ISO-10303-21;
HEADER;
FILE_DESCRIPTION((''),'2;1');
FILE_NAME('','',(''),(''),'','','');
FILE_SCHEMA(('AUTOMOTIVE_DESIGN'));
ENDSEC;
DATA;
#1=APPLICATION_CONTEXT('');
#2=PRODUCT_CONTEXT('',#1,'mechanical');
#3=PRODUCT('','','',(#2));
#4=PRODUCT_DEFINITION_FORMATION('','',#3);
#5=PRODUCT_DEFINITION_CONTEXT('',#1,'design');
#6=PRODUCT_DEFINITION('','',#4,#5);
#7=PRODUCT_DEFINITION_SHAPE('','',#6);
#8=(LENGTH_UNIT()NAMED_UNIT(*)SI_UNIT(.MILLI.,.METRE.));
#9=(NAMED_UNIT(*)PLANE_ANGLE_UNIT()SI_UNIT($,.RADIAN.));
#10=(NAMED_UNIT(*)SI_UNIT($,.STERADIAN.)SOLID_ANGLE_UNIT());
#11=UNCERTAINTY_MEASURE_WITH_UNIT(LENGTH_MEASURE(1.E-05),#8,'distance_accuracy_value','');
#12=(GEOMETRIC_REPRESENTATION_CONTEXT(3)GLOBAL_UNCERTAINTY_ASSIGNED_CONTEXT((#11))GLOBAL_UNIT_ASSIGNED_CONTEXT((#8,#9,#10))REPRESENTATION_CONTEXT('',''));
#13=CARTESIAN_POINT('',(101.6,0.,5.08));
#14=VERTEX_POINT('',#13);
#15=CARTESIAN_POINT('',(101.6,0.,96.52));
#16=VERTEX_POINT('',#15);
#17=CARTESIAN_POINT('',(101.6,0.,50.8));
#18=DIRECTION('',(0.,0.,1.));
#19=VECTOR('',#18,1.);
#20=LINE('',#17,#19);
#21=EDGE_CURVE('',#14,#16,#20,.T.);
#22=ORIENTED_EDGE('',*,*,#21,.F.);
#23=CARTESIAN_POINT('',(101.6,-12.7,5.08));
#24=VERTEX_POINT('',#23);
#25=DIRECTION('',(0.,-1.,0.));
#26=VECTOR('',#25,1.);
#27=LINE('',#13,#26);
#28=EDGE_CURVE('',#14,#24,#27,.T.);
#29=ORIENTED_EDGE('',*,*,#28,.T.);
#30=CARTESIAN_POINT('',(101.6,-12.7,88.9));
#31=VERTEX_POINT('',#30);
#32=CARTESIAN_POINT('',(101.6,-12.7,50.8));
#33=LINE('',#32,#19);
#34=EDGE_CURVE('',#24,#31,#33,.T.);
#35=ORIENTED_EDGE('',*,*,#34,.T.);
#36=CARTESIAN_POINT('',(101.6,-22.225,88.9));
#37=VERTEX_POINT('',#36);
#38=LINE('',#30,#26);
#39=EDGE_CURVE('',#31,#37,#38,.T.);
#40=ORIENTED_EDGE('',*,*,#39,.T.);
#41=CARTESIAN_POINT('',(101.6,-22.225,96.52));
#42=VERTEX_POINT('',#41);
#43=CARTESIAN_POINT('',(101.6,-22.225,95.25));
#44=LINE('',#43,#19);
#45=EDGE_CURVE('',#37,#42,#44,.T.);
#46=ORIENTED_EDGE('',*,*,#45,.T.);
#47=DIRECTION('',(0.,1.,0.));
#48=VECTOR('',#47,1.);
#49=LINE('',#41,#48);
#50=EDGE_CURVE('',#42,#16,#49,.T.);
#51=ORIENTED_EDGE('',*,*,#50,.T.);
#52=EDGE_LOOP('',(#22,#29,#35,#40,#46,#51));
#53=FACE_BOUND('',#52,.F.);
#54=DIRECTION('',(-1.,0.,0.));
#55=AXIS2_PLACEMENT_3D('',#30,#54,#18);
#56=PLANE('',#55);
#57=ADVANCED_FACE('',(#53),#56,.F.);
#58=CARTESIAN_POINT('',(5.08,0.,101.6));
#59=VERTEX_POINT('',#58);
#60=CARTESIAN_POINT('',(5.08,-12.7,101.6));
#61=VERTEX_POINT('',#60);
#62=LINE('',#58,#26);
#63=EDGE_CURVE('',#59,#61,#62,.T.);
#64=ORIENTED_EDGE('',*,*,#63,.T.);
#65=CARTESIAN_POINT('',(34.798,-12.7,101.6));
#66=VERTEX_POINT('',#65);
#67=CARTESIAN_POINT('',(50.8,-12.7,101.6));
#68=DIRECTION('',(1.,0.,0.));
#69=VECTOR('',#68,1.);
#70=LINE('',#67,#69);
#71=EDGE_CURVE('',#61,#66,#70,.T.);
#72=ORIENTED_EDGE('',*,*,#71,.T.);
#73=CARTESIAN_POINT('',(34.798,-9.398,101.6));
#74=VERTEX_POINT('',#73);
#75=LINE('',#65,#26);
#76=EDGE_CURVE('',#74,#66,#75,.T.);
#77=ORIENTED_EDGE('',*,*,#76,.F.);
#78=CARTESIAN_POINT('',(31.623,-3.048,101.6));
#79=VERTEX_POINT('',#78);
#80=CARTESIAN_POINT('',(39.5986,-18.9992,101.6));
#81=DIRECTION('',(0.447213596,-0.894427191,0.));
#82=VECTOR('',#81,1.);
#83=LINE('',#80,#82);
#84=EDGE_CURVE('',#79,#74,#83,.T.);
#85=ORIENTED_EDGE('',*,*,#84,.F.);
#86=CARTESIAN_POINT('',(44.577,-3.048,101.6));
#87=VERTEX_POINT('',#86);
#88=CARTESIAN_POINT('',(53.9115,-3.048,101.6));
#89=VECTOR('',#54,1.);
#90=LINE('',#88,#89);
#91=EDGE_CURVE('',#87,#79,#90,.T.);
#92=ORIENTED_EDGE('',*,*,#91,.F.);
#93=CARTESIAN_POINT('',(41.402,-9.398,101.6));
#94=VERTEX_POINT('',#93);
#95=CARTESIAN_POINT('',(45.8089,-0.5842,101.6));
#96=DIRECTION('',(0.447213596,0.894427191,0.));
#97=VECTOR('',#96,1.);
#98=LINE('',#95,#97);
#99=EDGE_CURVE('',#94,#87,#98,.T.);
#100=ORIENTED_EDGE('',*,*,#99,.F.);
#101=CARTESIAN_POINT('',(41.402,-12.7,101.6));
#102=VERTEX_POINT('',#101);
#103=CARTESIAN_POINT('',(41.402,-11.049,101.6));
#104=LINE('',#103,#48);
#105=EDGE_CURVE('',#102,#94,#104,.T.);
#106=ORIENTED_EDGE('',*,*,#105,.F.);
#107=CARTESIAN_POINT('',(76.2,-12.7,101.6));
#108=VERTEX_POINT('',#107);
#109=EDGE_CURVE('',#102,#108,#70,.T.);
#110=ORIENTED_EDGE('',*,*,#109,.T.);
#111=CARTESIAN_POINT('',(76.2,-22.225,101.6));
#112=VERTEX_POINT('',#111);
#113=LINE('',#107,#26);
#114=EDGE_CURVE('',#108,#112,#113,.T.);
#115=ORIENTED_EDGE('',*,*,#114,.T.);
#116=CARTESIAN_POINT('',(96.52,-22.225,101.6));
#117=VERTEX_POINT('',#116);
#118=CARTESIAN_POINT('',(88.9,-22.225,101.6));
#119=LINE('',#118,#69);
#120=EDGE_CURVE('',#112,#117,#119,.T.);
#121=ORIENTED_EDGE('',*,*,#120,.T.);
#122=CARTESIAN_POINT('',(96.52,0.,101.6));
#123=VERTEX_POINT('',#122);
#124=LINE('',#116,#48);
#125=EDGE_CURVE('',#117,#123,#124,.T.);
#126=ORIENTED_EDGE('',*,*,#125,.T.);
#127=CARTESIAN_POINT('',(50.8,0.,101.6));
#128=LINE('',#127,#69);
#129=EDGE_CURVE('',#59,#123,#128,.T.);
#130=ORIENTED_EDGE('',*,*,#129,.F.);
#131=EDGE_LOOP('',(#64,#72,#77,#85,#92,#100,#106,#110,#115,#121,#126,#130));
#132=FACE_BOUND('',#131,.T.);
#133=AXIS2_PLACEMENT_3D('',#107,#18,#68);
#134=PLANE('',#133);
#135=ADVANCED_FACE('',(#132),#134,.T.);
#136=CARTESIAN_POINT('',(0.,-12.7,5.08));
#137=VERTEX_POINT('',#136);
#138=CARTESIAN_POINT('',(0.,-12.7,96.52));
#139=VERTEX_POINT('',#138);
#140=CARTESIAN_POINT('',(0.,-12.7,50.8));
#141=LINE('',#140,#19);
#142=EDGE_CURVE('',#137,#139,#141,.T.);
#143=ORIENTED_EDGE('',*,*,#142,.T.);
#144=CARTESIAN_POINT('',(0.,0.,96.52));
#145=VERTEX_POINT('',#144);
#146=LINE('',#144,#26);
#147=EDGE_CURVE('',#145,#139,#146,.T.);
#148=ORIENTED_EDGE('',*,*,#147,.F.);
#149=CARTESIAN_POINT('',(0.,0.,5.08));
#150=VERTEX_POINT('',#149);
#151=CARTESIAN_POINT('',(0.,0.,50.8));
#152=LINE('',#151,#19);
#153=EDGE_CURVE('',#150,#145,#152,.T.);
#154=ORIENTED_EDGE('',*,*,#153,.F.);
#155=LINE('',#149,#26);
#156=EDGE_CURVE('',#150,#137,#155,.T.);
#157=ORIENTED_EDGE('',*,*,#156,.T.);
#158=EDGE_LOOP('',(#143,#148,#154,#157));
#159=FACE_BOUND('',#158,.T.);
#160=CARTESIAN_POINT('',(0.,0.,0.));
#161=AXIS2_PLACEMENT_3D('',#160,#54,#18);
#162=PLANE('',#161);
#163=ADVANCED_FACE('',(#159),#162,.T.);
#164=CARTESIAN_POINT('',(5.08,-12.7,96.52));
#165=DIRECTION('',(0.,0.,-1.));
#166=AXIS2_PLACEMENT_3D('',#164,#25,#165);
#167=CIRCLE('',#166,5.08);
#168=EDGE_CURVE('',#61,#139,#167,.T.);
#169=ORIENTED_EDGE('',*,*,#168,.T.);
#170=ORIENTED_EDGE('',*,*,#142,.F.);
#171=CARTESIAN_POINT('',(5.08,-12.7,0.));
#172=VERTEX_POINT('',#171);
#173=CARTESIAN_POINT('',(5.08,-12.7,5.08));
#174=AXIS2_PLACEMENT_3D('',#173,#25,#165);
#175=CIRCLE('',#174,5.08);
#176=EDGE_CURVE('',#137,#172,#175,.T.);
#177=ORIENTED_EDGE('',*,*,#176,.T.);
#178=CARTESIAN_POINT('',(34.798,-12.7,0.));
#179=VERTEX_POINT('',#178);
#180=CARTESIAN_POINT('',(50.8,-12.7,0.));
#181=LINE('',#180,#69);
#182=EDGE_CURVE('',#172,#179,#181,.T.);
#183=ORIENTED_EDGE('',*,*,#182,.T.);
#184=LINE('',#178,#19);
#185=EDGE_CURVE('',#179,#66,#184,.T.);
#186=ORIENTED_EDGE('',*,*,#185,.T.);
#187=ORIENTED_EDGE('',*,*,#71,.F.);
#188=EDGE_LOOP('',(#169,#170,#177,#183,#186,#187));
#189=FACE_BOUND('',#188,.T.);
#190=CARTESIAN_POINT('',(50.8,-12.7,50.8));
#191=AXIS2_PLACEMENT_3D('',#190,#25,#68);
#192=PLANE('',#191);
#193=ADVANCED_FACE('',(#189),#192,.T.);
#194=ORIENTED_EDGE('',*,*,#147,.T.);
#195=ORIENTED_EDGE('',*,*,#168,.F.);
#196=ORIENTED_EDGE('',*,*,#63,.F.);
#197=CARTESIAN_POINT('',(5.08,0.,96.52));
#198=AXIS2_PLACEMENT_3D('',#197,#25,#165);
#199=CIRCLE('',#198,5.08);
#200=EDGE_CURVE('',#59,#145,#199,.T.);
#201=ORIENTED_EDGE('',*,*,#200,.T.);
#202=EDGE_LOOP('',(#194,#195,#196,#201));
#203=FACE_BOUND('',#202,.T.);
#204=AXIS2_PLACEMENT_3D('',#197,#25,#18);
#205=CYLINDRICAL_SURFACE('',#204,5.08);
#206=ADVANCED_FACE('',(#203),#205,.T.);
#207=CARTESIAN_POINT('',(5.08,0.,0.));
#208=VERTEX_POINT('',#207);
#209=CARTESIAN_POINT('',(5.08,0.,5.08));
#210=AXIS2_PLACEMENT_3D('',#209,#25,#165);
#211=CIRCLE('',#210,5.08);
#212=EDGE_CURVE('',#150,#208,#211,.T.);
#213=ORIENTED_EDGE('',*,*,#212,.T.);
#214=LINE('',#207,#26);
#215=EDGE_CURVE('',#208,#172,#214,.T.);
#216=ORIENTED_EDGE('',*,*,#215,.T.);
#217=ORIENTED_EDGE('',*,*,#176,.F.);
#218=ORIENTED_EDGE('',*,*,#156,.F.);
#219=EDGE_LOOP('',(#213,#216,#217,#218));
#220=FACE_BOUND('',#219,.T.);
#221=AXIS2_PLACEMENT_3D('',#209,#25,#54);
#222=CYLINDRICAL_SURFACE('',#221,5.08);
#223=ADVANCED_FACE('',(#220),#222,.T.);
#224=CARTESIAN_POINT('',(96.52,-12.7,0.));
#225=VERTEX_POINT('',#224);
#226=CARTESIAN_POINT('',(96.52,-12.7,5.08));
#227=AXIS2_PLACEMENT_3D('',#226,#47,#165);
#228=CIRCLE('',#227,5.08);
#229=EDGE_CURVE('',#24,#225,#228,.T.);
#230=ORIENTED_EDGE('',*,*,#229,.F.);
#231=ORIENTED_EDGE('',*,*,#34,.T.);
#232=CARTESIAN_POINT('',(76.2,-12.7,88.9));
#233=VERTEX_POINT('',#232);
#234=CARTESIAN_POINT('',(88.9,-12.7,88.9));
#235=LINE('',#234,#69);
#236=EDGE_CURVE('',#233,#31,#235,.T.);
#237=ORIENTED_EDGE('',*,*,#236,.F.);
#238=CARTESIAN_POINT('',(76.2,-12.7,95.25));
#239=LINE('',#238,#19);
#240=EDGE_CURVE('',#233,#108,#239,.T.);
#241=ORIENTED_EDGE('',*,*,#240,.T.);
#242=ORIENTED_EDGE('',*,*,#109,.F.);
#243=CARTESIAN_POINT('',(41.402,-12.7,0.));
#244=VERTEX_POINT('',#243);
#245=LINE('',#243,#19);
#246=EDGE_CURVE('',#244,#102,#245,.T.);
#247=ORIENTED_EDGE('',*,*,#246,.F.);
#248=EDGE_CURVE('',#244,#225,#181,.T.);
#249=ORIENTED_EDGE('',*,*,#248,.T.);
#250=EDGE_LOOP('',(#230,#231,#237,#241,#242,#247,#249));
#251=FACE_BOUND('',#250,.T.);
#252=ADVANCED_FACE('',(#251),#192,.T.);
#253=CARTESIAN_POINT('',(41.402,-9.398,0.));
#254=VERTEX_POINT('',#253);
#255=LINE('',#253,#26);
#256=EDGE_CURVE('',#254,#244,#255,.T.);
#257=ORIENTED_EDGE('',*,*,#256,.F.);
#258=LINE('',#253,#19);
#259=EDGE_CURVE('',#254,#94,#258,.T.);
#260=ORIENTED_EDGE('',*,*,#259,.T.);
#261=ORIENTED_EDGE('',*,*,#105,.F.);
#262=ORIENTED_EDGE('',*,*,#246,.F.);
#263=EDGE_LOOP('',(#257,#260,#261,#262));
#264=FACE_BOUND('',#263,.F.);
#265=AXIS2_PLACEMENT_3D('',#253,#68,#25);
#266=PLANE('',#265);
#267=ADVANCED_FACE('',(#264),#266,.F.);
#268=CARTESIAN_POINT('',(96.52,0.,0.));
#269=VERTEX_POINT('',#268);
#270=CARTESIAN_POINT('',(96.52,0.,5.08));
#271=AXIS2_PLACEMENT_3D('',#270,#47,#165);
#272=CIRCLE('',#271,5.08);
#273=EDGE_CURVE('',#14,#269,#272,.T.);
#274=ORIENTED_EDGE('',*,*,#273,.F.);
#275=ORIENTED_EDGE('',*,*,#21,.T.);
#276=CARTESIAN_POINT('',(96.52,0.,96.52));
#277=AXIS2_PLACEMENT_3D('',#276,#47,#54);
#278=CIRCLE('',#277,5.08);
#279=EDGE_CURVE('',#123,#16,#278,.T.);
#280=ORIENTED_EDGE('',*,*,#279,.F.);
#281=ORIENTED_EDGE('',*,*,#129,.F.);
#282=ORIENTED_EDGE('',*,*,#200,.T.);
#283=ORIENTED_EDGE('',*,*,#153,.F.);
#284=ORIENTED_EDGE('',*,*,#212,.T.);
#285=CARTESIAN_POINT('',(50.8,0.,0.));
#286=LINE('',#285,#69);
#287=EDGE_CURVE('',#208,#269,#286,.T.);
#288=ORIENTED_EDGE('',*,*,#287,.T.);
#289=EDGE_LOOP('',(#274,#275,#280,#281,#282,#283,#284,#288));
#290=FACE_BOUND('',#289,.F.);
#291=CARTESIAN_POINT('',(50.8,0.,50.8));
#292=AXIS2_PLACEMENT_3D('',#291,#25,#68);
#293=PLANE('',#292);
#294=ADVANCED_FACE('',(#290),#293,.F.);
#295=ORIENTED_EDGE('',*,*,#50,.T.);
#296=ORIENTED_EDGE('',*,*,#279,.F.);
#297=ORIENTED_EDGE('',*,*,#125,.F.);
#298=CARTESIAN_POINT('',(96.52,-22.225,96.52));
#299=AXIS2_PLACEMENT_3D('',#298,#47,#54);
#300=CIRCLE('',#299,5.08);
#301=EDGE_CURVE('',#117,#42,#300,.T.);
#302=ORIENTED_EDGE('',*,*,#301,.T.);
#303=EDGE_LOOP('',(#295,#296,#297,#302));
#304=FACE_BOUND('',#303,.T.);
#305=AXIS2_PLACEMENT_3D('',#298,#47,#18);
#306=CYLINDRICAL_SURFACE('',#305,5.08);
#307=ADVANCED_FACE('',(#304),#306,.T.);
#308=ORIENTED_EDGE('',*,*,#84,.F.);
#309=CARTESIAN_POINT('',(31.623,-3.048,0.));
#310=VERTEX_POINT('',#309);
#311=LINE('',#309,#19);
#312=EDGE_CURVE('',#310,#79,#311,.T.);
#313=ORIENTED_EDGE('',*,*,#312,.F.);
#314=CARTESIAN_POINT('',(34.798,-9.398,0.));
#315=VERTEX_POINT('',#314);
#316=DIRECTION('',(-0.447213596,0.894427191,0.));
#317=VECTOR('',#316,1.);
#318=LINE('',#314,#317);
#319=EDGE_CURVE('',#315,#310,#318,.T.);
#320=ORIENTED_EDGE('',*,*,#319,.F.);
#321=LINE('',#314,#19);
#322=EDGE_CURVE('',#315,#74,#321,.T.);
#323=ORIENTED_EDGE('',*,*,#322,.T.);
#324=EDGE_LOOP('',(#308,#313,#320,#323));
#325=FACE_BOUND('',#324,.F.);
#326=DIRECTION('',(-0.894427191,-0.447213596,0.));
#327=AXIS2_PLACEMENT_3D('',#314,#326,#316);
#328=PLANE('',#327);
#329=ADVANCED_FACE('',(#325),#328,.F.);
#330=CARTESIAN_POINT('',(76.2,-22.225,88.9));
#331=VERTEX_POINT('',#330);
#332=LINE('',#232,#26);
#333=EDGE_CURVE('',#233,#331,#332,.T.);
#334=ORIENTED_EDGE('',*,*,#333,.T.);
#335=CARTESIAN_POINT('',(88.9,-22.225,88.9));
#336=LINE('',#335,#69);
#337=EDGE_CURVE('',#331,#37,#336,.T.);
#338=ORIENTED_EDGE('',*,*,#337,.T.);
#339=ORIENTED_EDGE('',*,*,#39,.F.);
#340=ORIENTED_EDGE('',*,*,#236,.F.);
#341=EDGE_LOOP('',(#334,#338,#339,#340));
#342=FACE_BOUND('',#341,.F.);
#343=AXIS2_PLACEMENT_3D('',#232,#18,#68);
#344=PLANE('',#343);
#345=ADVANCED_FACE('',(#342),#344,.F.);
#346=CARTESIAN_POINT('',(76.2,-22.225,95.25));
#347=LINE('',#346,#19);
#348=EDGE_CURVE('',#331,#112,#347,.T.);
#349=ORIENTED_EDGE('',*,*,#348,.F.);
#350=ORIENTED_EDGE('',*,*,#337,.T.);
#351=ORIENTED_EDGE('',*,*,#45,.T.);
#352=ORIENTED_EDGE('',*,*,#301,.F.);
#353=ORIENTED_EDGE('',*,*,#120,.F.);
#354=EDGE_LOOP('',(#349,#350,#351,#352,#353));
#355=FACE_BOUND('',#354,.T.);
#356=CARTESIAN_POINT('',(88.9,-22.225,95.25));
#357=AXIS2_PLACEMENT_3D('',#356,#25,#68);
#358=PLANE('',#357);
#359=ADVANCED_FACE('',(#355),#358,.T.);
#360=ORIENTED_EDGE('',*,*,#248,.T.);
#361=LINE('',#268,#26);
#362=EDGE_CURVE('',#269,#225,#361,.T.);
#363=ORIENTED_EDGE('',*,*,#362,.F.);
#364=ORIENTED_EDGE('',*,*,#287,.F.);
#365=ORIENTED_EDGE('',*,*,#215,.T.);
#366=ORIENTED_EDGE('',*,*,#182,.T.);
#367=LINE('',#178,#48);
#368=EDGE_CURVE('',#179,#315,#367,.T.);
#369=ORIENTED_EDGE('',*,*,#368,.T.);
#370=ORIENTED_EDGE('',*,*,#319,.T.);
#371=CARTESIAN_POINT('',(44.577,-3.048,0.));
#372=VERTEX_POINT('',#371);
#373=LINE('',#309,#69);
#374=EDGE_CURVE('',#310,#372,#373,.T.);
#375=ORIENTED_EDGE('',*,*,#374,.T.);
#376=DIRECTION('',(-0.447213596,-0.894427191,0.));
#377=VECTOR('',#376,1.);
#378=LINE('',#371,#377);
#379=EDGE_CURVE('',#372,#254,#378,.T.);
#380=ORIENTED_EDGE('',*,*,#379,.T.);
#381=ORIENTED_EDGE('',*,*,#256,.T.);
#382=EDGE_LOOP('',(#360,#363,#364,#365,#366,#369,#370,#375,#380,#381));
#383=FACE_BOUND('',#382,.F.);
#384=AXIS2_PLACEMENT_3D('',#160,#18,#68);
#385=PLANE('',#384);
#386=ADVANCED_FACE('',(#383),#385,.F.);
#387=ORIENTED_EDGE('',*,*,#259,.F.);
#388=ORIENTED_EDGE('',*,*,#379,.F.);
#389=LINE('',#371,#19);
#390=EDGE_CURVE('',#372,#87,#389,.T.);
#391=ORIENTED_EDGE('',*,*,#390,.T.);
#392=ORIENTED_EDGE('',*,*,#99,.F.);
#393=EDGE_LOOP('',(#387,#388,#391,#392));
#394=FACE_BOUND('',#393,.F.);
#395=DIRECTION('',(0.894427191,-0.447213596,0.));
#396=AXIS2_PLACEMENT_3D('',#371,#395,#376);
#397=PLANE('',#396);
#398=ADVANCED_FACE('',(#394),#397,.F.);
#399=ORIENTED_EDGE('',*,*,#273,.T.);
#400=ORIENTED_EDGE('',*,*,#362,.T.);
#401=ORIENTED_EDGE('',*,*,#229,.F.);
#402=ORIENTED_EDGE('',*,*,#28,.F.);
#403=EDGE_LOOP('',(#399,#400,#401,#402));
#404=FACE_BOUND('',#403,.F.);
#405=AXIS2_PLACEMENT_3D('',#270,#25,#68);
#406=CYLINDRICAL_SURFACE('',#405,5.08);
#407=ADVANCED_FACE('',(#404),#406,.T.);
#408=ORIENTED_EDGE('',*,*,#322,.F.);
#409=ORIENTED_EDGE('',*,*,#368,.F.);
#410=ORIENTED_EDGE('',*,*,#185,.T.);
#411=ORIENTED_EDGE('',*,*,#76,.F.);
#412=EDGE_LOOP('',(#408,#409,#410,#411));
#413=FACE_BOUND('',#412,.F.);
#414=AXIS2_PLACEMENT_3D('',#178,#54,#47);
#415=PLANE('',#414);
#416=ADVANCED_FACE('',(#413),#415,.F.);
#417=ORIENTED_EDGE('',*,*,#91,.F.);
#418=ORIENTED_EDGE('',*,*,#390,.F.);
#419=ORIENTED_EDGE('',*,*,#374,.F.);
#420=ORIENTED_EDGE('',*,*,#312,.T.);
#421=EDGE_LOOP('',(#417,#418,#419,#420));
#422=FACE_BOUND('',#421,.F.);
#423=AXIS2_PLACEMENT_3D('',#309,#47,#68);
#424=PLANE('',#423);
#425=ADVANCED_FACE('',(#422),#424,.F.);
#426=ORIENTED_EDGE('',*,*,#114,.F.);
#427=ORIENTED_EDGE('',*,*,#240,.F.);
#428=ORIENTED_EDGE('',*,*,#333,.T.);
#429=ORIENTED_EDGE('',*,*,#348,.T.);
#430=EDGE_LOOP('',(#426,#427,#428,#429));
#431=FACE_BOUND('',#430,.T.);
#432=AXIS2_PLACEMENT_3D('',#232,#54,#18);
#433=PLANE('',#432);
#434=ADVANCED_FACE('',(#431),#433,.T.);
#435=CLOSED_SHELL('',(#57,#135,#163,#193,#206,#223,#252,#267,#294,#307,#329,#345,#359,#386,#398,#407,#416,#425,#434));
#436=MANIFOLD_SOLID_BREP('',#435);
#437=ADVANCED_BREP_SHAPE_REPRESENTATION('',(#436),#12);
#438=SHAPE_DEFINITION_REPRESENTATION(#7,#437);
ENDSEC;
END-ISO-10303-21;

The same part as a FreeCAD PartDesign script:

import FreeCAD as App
import Part
import Sketcher
from FreeCAD import Vector
Q = App.Units.Quantity


def edges_at(feature, points):
    """Names of the edges that pass closest to the given points."""
    edges = feature.Shape.Edges
    near = lambda p: min(range(len(edges)), key=lambda i: edges[i].distToShape(Part.Vertex(*p))[0])
    return sorted({f"Edge{near(p) + 1}" for p in points})


def add_polygon(sketch, points):
    """Adds a closed chain of lines whose ends are joined by coincident constraints."""
    first, n = sketch.GeometryCount, len(points)
    for a, b in zip(points, points[1:] + points[:1]):
        sketch.addGeometry(Part.LineSegment(App.Vector(*a, 0), App.Vector(*b, 0)), False)
    for i in range(n):
        sketch.addConstraint(Sketcher.Constraint("Coincident", first + i, 2, first + (i + 1) % n, 1))

doc = App.newDocument("Part")
body = doc.addObject("PartDesign::Body", "Body")

# Sketch on XZ plane
sketch1 = doc.addObject("Sketcher::SketchObject", "Sketch")
body.addObject(sketch1)
sketch1.AttachmentSupport = (doc.XZ_Plane, [""])
sketch1.MapMode = "FlatFace"
add_polygon(sketch1, [(0, 102), (0, 0), (102, 0), (102, 102)])  # lines 0-3
sketch1.addConstraint([
    Sketcher.Constraint("Vertical", 0),
    Sketcher.Constraint("Horizontal", 1),
    Sketcher.Constraint("Vertical", 2),
    Sketcher.Constraint("Horizontal", 3),
    Sketcher.Constraint("Coincident", 0, 2, -1, 1),
    Sketcher.Constraint("Equal", 3, 0),
    Sketcher.Constraint("DistanceX", 1, 1, 1, 2, Q("4 in")),
])
pad1 = doc.addObject("PartDesign::Pad", "Pad")
body.addObject(pad1)
pad1.Profile = sketch1
pad1.Length = Q("0.5 in")

# Sketch on XZ plane
sketch2 = doc.addObject("Sketcher::SketchObject", "Sketch001")
body.addObject(sketch2)
sketch2.AttachmentSupport = (doc.XZ_Plane, [""])
sketch2.MapMode = "FlatFace"
sketch2.AttachmentOffset = App.Placement(Vector(0, 0, 0.5 * 25.4), App.Rotation())
add_polygon(sketch2, [(76, 102), (76, 89), (102, 89), (102, 102)])  # lines 0-3
sketch2.addConstraint([
    Sketcher.Constraint("Vertical", 0),
    Sketcher.Constraint("Horizontal", 1),
    Sketcher.Constraint("Vertical", 2),
    Sketcher.Constraint("Horizontal", 3),
    Sketcher.Constraint("DistanceX", 1, 1, 1, 2, Q("1 in")),
    Sketcher.Constraint("DistanceY", 0, 2, 0, 1, Q("0.5 in")),
    Sketcher.Constraint("DistanceX", -1, 1, 0, 2, Q("3 in")),
    Sketcher.Constraint("DistanceY", -1, 1, 2, 2, Q("4 in")),
])
pad2 = doc.addObject("PartDesign::Pad", "Pad001")
body.addObject(pad2)
pad2.Profile = sketch2
pad2.Length = Q("0.375 in")

# Sketch on XY plane
sketch3 = doc.addObject("Sketcher::SketchObject", "Sketch002")
body.addObject(sketch3)
sketch3.AttachmentSupport = (doc.XY_Plane, [""])
sketch3.MapMode = "FlatFace"
add_polygon(sketch3, [(41.4, -12.7), (34.8, -12.7), (34.8, -9.4), (31.6, -3), (44.6, -3), (41.4, -9.4)])  # lines 0-5
sketch3.addConstraint([
    Sketcher.Constraint("Horizontal", 0),
    Sketcher.Constraint("Vertical", 1),
    Sketcher.Constraint("Horizontal", 3),
    Sketcher.Constraint("Vertical", 5),
    Sketcher.Constraint("Horizontal", 1, 2, 4, 2),
    Sketcher.Constraint("Equal", 2, 4),
    Sketcher.Constraint("DistanceX", 0, 2, 0, 1, Q("0.26 in")),
    Sketcher.Constraint("DistanceX", 3, 1, 3, 2, Q("0.51 in")),
    Sketcher.Constraint("DistanceY", 1, 1, 1, 2, Q("0.13 in")),
    Sketcher.Constraint("DistanceY", 0, 2, -1, 1, Q("0.5 in")),
    Sketcher.Constraint("DistanceX", -1, 1, 0, 2, Q("1.37 in")),
    Sketcher.Constraint("DistanceY", 2, 2, -1, 1, Q("0.12 in")),
])
pocket1 = doc.addObject("PartDesign::Pocket", "Pocket")
body.addObject(pocket1)
pocket1.Profile = sketch3
pocket1.Type = "ThroughAll"
pocket1.Reversed = True
doc.recompute()

fillet = doc.addObject("PartDesign::Fillet", "Fillet")
body.addObject(fillet)
fillet.Base = (pocket1, edges_at(pocket1, [
    (0, -6.35, 101.6),
    (0, -6.35, 0),
    (101.6, -6.35, 0),
    (101.6, -11.113, 101.6),
]))
fillet.Radius = Q("0.2 in")

doc.recompute()
